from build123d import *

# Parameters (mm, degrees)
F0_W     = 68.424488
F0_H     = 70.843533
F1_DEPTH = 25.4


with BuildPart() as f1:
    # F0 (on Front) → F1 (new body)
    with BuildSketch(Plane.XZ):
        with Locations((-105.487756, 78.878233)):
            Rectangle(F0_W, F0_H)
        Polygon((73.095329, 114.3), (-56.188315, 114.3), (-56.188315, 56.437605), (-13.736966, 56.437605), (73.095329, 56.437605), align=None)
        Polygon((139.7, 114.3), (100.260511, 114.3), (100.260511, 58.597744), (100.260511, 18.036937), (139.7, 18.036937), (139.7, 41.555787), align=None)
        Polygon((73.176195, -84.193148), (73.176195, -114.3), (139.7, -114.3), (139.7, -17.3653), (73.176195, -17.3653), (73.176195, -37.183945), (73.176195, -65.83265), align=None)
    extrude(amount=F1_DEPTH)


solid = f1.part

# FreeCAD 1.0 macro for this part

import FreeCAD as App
import Part
import Sketcher
from FreeCAD import Vector
Q = App.Units.Quantity

doc = App.newDocument("Part")
body = doc.addObject("PartDesign::Body", "Body")
body.AllowCompound = True

# Sketch on XZ plane
sketch1 = doc.addObject("Sketcher::SketchObject", "Sketch")
body.addObject(sketch1)
sketch1.AttachmentSupport = (doc.XZ_Plane, [""])
sketch1.MapMode = "FlatFace"
sketch1.addGeometry(Part.LineSegment(Vector(-140, 114, 0), Vector(-140, 43, 0)), False)
sketch1.addGeometry(Part.LineSegment(Vector(-140, 43, 0), Vector(-71, 43, 0)), False)
sketch1.addGeometry(Part.LineSegment(Vector(-71, 43, 0), Vector(-71, 114, 0)), False)
sketch1.addGeometry(Part.LineSegment(Vector(-71, 114, 0), Vector(-140, 114, 0)), False)
sketch1.addGeometry(Part.LineSegment(Vector(73, 114, 0), Vector(-56, 114, 0)), False)
sketch1.addGeometry(Part.LineSegment(Vector(-56, 114, 0), Vector(-56, 56, 0)), False)
sketch1.addGeometry(Part.LineSegment(Vector(-56, 56, 0), Vector(73, 56, 0)), False)
sketch1.addGeometry(Part.LineSegment(Vector(73, 56, 0), Vector(73, 114, 0)), False)
sketch1.addGeometry(Part.LineSegment(Vector(140, 114, 0), Vector(100, 114, 0)), False)
sketch1.addGeometry(Part.LineSegment(Vector(100, 114, 0), Vector(100, 18, 0)), False)
sketch1.addGeometry(Part.LineSegment(Vector(100, 18, 0), Vector(140, 18, 0)), False)
sketch1.addGeometry(Part.LineSegment(Vector(140, 18, 0), Vector(140, 114, 0)), False)
sketch1.addGeometry(Part.LineSegment(Vector(73, -114, 0), Vector(140, -114, 0)), False)
sketch1.addGeometry(Part.LineSegment(Vector(140, -114, 0), Vector(140, -17, 0)), False)
sketch1.addGeometry(Part.LineSegment(Vector(140, -17, 0), Vector(73, -17, 0)), False)
sketch1.addGeometry(Part.LineSegment(Vector(73, -17, 0), Vector(73, -114, 0)), False)
sketch1.addConstraint(Sketcher.Constraint("Coincident", 0, 2, 1, 1))
sketch1.addConstraint(Sketcher.Constraint("Coincident", 1, 2, 2, 1))
sketch1.addConstraint(Sketcher.Constraint("Coincident", 2, 2, 3, 1))
sketch1.addConstraint(Sketcher.Constraint("Coincident", 3, 2, 0, 1))
sketch1.addConstraint(Sketcher.Constraint("Coincident", 4, 2, 5, 1))
sketch1.addConstraint(Sketcher.Constraint("Coincident", 5, 2, 6, 1))
sketch1.addConstraint(Sketcher.Constraint("Coincident", 6, 2, 7, 1))
sketch1.addConstraint(Sketcher.Constraint("Coincident", 7, 2, 4, 1))
sketch1.addConstraint(Sketcher.Constraint("Coincident", 8, 2, 9, 1))
sketch1.addConstraint(Sketcher.Constraint("Coincident", 9, 2, 10, 1))
sketch1.addConstraint(Sketcher.Constraint("Coincident", 10, 2, 11, 1))
sketch1.addConstraint(Sketcher.Constraint("Coincident", 11, 2, 8, 1))
sketch1.addConstraint(Sketcher.Constraint("Coincident", 12, 2, 13, 1))
sketch1.addConstraint(Sketcher.Constraint("Coincident", 13, 2, 14, 1))
sketch1.addConstraint(Sketcher.Constraint("Coincident", 14, 2, 15, 1))
sketch1.addConstraint(Sketcher.Constraint("Coincident", 15, 2, 12, 1))
sketch1.addConstraint(Sketcher.Constraint("Vertical", 0))
sketch1.addConstraint(Sketcher.Constraint("Horizontal", 1))
sketch1.addConstraint(Sketcher.Constraint("Vertical", 2))
sketch1.addConstraint(Sketcher.Constraint("Horizontal", 3))
sketch1.addConstraint(Sketcher.Constraint("Horizontal", 4))
sketch1.addConstraint(Sketcher.Constraint("Vertical", 5))
sketch1.addConstraint(Sketcher.Constraint("Horizontal", 6))
sketch1.addConstraint(Sketcher.Constraint("Vertical", 7))
sketch1.addConstraint(Sketcher.Constraint("Horizontal", 8))
sketch1.addConstraint(Sketcher.Constraint("Vertical", 9))
sketch1.addConstraint(Sketcher.Constraint("Horizontal", 10))
sketch1.addConstraint(Sketcher.Constraint("Vertical", 11))
sketch1.addConstraint(Sketcher.Constraint("Horizontal", 12))
sketch1.addConstraint(Sketcher.Constraint("Vertical", 13))
sketch1.addConstraint(Sketcher.Constraint("Horizontal", 14))
sketch1.addConstraint(Sketcher.Constraint("Vertical", 15))
sketch1.addConstraint(Sketcher.Constraint("Symmetric", 3, 2, 12, 2, -1, 1))
sketch1.addConstraint(Sketcher.Constraint("Symmetric", 3, 2, 11, 2, -2))
sketch1.addConstraint(Sketcher.Constraint("Horizontal", 3, 2, 4, 2))
sketch1.addConstraint(Sketcher.Constraint("DistanceY", 12, 2, 11, 2, Q("9 in")))
sketch1.addConstraint(Sketcher.Constraint("DistanceX", 0, 2, -1, 1, Q("5.5 in")))
sketch1.addConstraint(Sketcher.Constraint("DistanceY", 13, 1, 13, 2, Q("96.9347 mm")))
sketch1.addConstraint(Sketcher.Constraint("DistanceX", 8, 2, 8, 1, Q("39.439489 mm")))
sketch1.addConstraint(Sketcher.Constraint("DistanceX", 1, 1, 1, 2, Q("68.424488 mm")))
sketch1.addConstraint(Sketcher.Constraint("DistanceX", 4, 2, 4, 1, Q("129.283644 mm")))
sketch1.addConstraint(Sketcher.Constraint("DistanceX", 12, 1, 12, 2, Q("66.523805 mm")))
sketch1.addConstraint(Sketcher.Constraint("DistanceY", 0, 2, 0, 1, Q("70.843533 mm")))
sketch1.addConstraint(Sketcher.Constraint("DistanceY", 5, 2, 5, 1, Q("57.862395 mm")))
sketch1.addConstraint(Sketcher.Constraint("DistanceY", 9, 2, 9, 1, Q("96.263063 mm")))
sketch1.addConstraint(Sketcher.Constraint("DistanceX", -1, 1, 6, 2, Q("73.095329 mm")))
pad1 = doc.addObject("PartDesign::Pad", "Pad")
body.addObject(pad1)
pad1.Profile = sketch1
pad1.Length = Q("1 in")

doc.recompute()
